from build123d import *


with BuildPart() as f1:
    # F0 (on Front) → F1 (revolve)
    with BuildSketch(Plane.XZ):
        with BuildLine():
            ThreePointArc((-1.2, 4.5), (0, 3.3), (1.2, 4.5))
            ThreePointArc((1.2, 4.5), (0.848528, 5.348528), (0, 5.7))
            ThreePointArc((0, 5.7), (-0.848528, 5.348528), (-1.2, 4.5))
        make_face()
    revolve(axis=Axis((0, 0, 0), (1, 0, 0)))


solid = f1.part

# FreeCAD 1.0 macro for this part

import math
import FreeCAD as App
import Part
import Sketcher
Q = App.Units.Quantity

doc = App.newDocument("Part")
body = doc.addObject("PartDesign::Body", "Body")

# Sketch on XZ plane
sketch1 = body.newObject("Sketcher::SketchObject", "Sketch")
sketch1.AttachmentSupport = (doc.getObject("XZ_Plane"), [""])
sketch1.MapMode = "FlatFace"
sketch1.addGeometry(Part.ArcOfCircle(Part.Circle(App.Vector(0, 4.5, 0), App.Vector(0, 0, 1), 1.2), math.radians(180), math.radians(360)), False)
sketch1.addGeometry(Part.ArcOfCircle(Part.Circle(App.Vector(0, 4.5, 0), App.Vector(0, 0, 1), 1.2), math.radians(0.000022), math.radians(89.999978)), False)
sketch1.addGeometry(Part.ArcOfCircle(Part.Circle(App.Vector(0, 4.5, 0), App.Vector(0, 0, 1), 1.2), math.radians(90.000022), math.radians(179.999978)), False)
sketch1.addConstraint(Sketcher.Constraint("Tangent", 0, 2, 1, 1))
sketch1.addConstraint(Sketcher.Constraint("Tangent", 1, 2, 2, 1))
sketch1.addConstraint(Sketcher.Constraint("Tangent", 2, 2, 0, 1))
sketch1.addConstraint(Sketcher.Constraint("Symmetric", 0, 2, 2, 2, -2))
sketch1.addConstraint(Sketcher.Constraint("PointOnObject", 1, 2, -2))
sketch1.addConstraint(Sketcher.Constraint("Horizontal", 2, 3, 0, 2))
sketch1.addConstraint(Sketcher.Constraint("Radius", 0, Q("1.2 mm")))
sketch1.addConstraint(Sketcher.Constraint("DistanceY", -1, 1, 0, 3, Q("4.5 mm")))
revolution = body.newObject("PartDesign::Revolution", "Revolution")
revolution.Profile = sketch1
revolution.ReferenceAxis = (sketch1, ["H_Axis"])
revolution.Angle = 360

doc.recompute()
